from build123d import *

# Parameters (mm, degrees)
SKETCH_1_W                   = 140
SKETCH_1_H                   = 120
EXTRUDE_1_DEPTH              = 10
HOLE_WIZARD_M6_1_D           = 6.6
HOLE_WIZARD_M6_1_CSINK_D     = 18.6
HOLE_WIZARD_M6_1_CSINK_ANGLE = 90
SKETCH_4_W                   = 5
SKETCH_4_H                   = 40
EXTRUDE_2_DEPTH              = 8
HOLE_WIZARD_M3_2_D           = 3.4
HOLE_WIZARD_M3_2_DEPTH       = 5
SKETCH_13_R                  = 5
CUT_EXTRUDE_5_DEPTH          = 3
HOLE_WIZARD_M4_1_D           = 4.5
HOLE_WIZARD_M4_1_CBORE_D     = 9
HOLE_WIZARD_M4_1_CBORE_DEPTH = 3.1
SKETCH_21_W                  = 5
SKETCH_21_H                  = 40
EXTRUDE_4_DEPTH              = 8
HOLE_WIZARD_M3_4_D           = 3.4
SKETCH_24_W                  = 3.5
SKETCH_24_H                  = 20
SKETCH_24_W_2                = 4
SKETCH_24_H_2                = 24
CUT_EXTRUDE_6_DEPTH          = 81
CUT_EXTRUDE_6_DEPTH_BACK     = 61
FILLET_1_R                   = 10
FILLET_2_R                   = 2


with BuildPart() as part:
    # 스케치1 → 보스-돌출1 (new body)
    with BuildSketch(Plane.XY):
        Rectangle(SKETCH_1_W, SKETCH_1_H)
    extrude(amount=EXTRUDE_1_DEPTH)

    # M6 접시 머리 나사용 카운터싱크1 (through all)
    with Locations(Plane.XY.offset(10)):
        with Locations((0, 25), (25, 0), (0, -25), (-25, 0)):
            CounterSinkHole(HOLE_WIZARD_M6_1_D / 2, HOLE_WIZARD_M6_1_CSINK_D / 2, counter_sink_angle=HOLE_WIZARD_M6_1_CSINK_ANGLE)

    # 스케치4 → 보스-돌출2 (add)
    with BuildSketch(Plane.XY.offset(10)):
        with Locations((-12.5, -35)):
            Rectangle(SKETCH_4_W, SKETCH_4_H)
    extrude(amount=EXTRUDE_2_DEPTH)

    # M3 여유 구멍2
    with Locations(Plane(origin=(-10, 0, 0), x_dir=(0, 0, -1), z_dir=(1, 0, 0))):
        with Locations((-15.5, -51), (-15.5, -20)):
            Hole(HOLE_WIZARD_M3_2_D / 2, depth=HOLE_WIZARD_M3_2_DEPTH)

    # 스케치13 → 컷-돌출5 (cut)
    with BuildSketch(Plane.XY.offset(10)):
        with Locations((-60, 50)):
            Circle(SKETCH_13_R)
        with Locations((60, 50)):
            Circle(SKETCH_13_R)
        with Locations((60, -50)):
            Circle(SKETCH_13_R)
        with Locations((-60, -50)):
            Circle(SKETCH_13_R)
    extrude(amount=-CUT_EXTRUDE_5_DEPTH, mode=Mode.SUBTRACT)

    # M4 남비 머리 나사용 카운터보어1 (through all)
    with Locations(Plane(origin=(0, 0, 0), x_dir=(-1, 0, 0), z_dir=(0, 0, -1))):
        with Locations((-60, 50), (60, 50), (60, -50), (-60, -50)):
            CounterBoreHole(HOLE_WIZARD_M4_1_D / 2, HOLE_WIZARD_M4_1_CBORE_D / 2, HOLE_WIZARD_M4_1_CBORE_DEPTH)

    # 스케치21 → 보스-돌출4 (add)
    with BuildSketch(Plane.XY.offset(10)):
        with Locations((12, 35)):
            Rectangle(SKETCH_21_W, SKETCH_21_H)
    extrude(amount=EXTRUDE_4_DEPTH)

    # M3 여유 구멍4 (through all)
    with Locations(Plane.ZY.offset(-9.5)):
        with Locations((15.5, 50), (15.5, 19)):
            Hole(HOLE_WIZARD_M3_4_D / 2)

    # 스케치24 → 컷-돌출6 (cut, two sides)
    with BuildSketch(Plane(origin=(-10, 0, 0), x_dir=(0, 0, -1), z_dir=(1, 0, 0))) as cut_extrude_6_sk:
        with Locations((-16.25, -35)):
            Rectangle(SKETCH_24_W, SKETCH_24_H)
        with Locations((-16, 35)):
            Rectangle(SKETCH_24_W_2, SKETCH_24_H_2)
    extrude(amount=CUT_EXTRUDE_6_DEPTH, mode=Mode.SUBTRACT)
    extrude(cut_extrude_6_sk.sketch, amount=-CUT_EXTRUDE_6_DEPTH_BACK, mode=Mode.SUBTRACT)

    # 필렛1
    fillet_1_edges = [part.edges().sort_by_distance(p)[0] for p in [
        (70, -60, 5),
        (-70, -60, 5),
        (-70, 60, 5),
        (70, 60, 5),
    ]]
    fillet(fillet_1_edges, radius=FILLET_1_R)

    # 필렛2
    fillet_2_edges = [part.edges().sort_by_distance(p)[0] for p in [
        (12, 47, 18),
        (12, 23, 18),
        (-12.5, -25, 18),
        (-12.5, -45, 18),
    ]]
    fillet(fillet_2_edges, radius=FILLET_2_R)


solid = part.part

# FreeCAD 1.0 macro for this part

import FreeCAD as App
import Part
import Sketcher
from FreeCAD import Vector
Q = App.Units.Quantity


def edges_at(feature, points):
    """Names of the edges that pass closest to the given points."""
    edges = feature.Shape.Edges
    near = lambda p: min(range(len(edges)), key=lambda i: edges[i].distToShape(Part.Vertex(*p))[0])
    return sorted({f"Edge{near(p) + 1}" for p in points})

doc = App.newDocument("Part")
body = doc.addObject("PartDesign::Body", "Body")

# Sketch on XY plane
sketch1 = body.newObject("Sketcher::SketchObject", "Sketch")
sketch1.AttachmentSupport = (doc.getObject("XY_Plane"), [""])
sketch1.MapMode = "FlatFace"
sketch1.addGeometry(Part.LineSegment(Vector(-70, 60, 0), Vector(-70, -60, 0)), False)
sketch1.addGeometry(Part.LineSegment(Vector(-70, -60, 0), Vector(70, -60, 0)), False)
sketch1.addGeometry(Part.LineSegment(Vector(70, -60, 0), Vector(70, 60, 0)), False)
sketch1.addGeometry(Part.LineSegment(Vector(70, 60, 0), Vector(-70, 60, 0)), False)
sketch1.addConstraint(Sketcher.Constraint("Coincident", 0, 2, 1, 1))
sketch1.addConstraint(Sketcher.Constraint("Coincident", 1, 2, 2, 1))
sketch1.addConstraint(Sketcher.Constraint("Coincident", 2, 2, 3, 1))
sketch1.addConstraint(Sketcher.Constraint("Coincident", 3, 2, 0, 1))
sketch1.addConstraint(Sketcher.Constraint("Vertical", 0))
sketch1.addConstraint(Sketcher.Constraint("Horizontal", 1))
sketch1.addConstraint(Sketcher.Constraint("Vertical", 2))
sketch1.addConstraint(Sketcher.Constraint("Horizontal", 3))
sketch1.addConstraint(Sketcher.Constraint("Symmetric", 0, 2, 2, 2, -1, 1))
sketch1.addConstraint(Sketcher.Constraint("DistanceX", 1, 1, 1, 2, Q("140 mm")))
sketch1.addConstraint(Sketcher.Constraint("DistanceY", 0, 2, 0, 1, Q("120 mm")))
pad1 = body.newObject("PartDesign::Pad", "Pad")
pad1.Profile = sketch1
pad1.Length = 10

# Sketch on XY plane
sketch2 = body.newObject("Sketcher::SketchObject", "Sketch001")
sketch2.AttachmentSupport = (doc.getObject("XY_Plane"), [""])
sketch2.MapMode = "FlatFace"
sketch2.AttachmentOffset = App.Placement(Vector(0, 0, 10), App.Rotation())
sketch2.addGeometry(Part.Circle(Vector(0, 25, 0), Vector(0, 0, 1), 3.3), False)
sketch2.addGeometry(Part.Circle(Vector(25, 0, 0), Vector(0, 0, 1), 3.3), False)
sketch2.addGeometry(Part.Circle(Vector(0, -25, 0), Vector(0, 0, 1), 3.3), False)
sketch2.addGeometry(Part.Circle(Vector(-25, 0, 0), Vector(0, 0, 1), 3.3), False)
sketch2.addConstraint(Sketcher.Constraint("Equal", 0, 1))
sketch2.addConstraint(Sketcher.Constraint("Equal", 1, 2))
sketch2.addConstraint(Sketcher.Constraint("Equal", 2, 3))
sketch2.addConstraint(Sketcher.Constraint("Symmetric", 0, 3, 2, 3, -1, 1))
sketch2.addConstraint(Sketcher.Constraint("Symmetric", 1, 3, 3, 3, -1, 1))
sketch2.addConstraint(Sketcher.Constraint("PointOnObject", 0, 3, -2))
sketch2.addConstraint(Sketcher.Constraint("PointOnObject", 1, 3, -1))
sketch2.addConstraint(Sketcher.Constraint("Diameter", 0, Q("6.6 mm")))
sketch2.addConstraint(Sketcher.Constraint("DistanceY", -1, 1, 0, 3, Q("25 mm")))
sketch2.addConstraint(Sketcher.Constraint("DistanceX", -1, 1, 1, 3, Q("25 mm")))
doc.recompute()
hole = body.newObject("PartDesign::Hole", "Hole")
hole.Profile = sketch2
hole.ThreadType = "None"
hole.Diameter = 6.6
hole.DepthType = "ThroughAll"
hole.HoleCutType = "Countersink"
hole.HoleCutDiameter = 18.6
hole.HoleCutCountersinkAngle = 90

# Sketch on XY plane
sketch3 = body.newObject("Sketcher::SketchObject", "Sketch002")
sketch3.AttachmentSupport = (doc.getObject("XY_Plane"), [""])
sketch3.MapMode = "FlatFace"
sketch3.AttachmentOffset = App.Placement(Vector(0, 0, 10), App.Rotation())
sketch3.addGeometry(Part.LineSegment(Vector(-15, -15, 0), Vector(-15, -55, 0)), False)
sketch3.addGeometry(Part.LineSegment(Vector(-15, -55, 0), Vector(-10, -55, 0)), False)
sketch3.addGeometry(Part.LineSegment(Vector(-10, -55, 0), Vector(-10, -15, 0)), False)
sketch3.addGeometry(Part.LineSegment(Vector(-10, -15, 0), Vector(-15, -15, 0)), False)
sketch3.addConstraint(Sketcher.Constraint("Coincident", 0, 2, 1, 1))
sketch3.addConstraint(Sketcher.Constraint("Coincident", 1, 2, 2, 1))
sketch3.addConstraint(Sketcher.Constraint("Coincident", 2, 2, 3, 1))
sketch3.addConstraint(Sketcher.Constraint("Coincident", 3, 2, 0, 1))
sketch3.addConstraint(Sketcher.Constraint("Vertical", 0))
sketch3.addConstraint(Sketcher.Constraint("Horizontal", 1))
sketch3.addConstraint(Sketcher.Constraint("Vertical", 2))
sketch3.addConstraint(Sketcher.Constraint("Horizontal", 3))
sketch3.addConstraint(Sketcher.Constraint("DistanceX", 1, 1, 1, 2, Q("5 mm")))
sketch3.addConstraint(Sketcher.Constraint("DistanceY", 0, 2, 0, 1, Q("40 mm")))
sketch3.addConstraint(Sketcher.Constraint("DistanceX", 0, 2, -1, 1, Q("15 mm")))
sketch3.addConstraint(Sketcher.Constraint("DistanceY", 0, 2, -1, 1, Q("55 mm")))
pad2 = body.newObject("PartDesign::Pad", "Pad001")
pad2.Profile = sketch3
pad2.Length = 8

# Sketch on YZ plane
sketch4 = body.newObject("Sketcher::SketchObject", "Sketch003")
sketch4.AttachmentSupport = (doc.getObject("YZ_Plane"), [""])
sketch4.MapMode = "FlatFace"
sketch4.AttachmentOffset = App.Placement(Vector(0, 0, -10), App.Rotation())
sketch4.addGeometry(Part.Circle(Vector(-51, 15.5, 0), Vector(0, 0, 1), 1.7), False)
sketch4.addGeometry(Part.Circle(Vector(-20, 15.5, 0), Vector(0, 0, 1), 1.7), False)
sketch4.addConstraint(Sketcher.Constraint("Equal", 0, 1))
sketch4.addConstraint(Sketcher.Constraint("Horizontal", 0, 3, 1, 3))
sketch4.addConstraint(Sketcher.Constraint("Diameter", 0, Q("3.4 mm")))
sketch4.addConstraint(Sketcher.Constraint("DistanceX", 0, 3, -1, 1, Q("51 mm")))
sketch4.addConstraint(Sketcher.Constraint("DistanceX", 1, 3, -1, 1, Q("20 mm")))
sketch4.addConstraint(Sketcher.Constraint("DistanceY", -1, 1, 0, 3, Q("15.5 mm")))
doc.recompute()
hole2 = body.newObject("PartDesign::Hole", "Hole001")
hole2.Profile = sketch4
hole2.ThreadType = "None"
hole2.Diameter = 3.4
hole2.DepthType = "Dimension"
hole2.Depth = 5
hole2.DrillPoint = "Flat"

# Sketch on XY plane
sketch5 = body.newObject("Sketcher::SketchObject", "Sketch004")
sketch5.AttachmentSupport = (doc.getObject("XY_Plane"), [""])
sketch5.MapMode = "FlatFace"
sketch5.AttachmentOffset = App.Placement(Vector(0, 0, 10), App.Rotation())
sketch5.addGeometry(Part.Circle(Vector(-60, 50, 0), Vector(0, 0, 1), 5), False)
sketch5.addGeometry(Part.Circle(Vector(60, 50, 0), Vector(0, 0, 1), 5), False)
sketch5.addGeometry(Part.Circle(Vector(60, -50, 0), Vector(0, 0, 1), 5), False)
sketch5.addGeometry(Part.Circle(Vector(-60, -50, 0), Vector(0, 0, 1), 5), False)
sketch5.addConstraint(Sketcher.Constraint("Equal", 0, 1))
sketch5.addConstraint(Sketcher.Constraint("Equal", 1, 2))
sketch5.addConstraint(Sketcher.Constraint("Equal", 2, 3))
sketch5.addConstraint(Sketcher.Constraint("Symmetric", 0, 3, 2, 3, -1, 1))
sketch5.addConstraint(Sketcher.Constraint("Symmetric", 1, 3, 3, 3, -1, 1))
sketch5.addConstraint(Sketcher.Constraint("Symmetric", 0, 3, 1, 3, -2))
sketch5.addConstraint(Sketcher.Constraint("Diameter", 0, Q("10 mm")))
sketch5.addConstraint(Sketcher.Constraint("DistanceX", 0, 3, -1, 1, Q("60 mm")))
sketch5.addConstraint(Sketcher.Constraint("DistanceY", -1, 1, 0, 3, Q("50 mm")))
pocket1 = body.newObject("PartDesign::Pocket", "Pocket")
pocket1.Profile = sketch5
pocket1.Length = 3

# Sketch on XY plane
sketch6 = body.newObject("Sketcher::SketchObject", "Sketch005")
sketch6.AttachmentSupport = (doc.getObject("XY_Plane"), [""])
sketch6.MapMode = "FlatFace"
sketch6.addGeometry(Part.Circle(Vector(60, 50, 0), Vector(0, 0, 1), 2.2), False)
sketch6.addGeometry(Part.Circle(Vector(-60, 50, 0), Vector(0, 0, 1), 2.2), False)
sketch6.addGeometry(Part.Circle(Vector(-60, -50, 0), Vector(0, 0, 1), 2.2), False)
sketch6.addGeometry(Part.Circle(Vector(60, -50, 0), Vector(0, 0, 1), 2.2), False)
sketch6.addConstraint(Sketcher.Constraint("Equal", 0, 1))
sketch6.addConstraint(Sketcher.Constraint("Equal", 1, 2))
sketch6.addConstraint(Sketcher.Constraint("Equal", 2, 3))
sketch6.addConstraint(Sketcher.Constraint("Symmetric", 0, 3, 2, 3, -1, 1))
sketch6.addConstraint(Sketcher.Constraint("Symmetric", 1, 3, 3, 3, -1, 1))
sketch6.addConstraint(Sketcher.Constraint("Symmetric", 0, 3, 1, 3, -2))
sketch6.addConstraint(Sketcher.Constraint("Diameter", 0, Q("4.5 mm")))
sketch6.addConstraint(Sketcher.Constraint("DistanceX", -1, 1, 0, 3, Q("60 mm")))
sketch6.addConstraint(Sketcher.Constraint("DistanceY", -1, 1, 0, 3, Q("50 mm")))
doc.recompute()
hole3 = body.newObject("PartDesign::Hole", "Hole002")
hole3.Profile = sketch6
hole3.ThreadType = "None"
hole3.Diameter = 4.5
hole3.DepthType = "ThroughAll"
hole3.HoleCutType = "Counterbore"
hole3.HoleCutDiameter = 9
hole3.HoleCutDepth = 3.1
hole3.Reversed = True

# Sketch on XY plane
sketch7 = body.newObject("Sketcher::SketchObject", "Sketch006")
sketch7.AttachmentSupport = (doc.getObject("XY_Plane"), [""])
sketch7.MapMode = "FlatFace"
sketch7.AttachmentOffset = App.Placement(Vector(0, 0, 10), App.Rotation())
sketch7.addGeometry(Part.LineSegment(Vector(10, 55, 0), Vector(10, 15, 0)), False)
sketch7.addGeometry(Part.LineSegment(Vector(10, 15, 0), Vector(14, 15, 0)), False)
sketch7.addGeometry(Part.LineSegment(Vector(14, 15, 0), Vector(14, 55, 0)), False)
sketch7.addGeometry(Part.LineSegment(Vector(14, 55, 0), Vector(10, 55, 0)), False)
sketch7.addConstraint(Sketcher.Constraint("Coincident", 0, 2, 1, 1))
sketch7.addConstraint(Sketcher.Constraint("Coincident", 1, 2, 2, 1))
sketch7.addConstraint(Sketcher.Constraint("Coincident", 2, 2, 3, 1))
sketch7.addConstraint(Sketcher.Constraint("Coincident", 3, 2, 0, 1))
sketch7.addConstraint(Sketcher.Constraint("Vertical", 0))
sketch7.addConstraint(Sketcher.Constraint("Horizontal", 1))
sketch7.addConstraint(Sketcher.Constraint("Vertical", 2))
sketch7.addConstraint(Sketcher.Constraint("Horizontal", 3))
sketch7.addConstraint(Sketcher.Constraint("DistanceX", 1, 1, 1, 2, Q("5 mm")))
sketch7.addConstraint(Sketcher.Constraint("DistanceY", 0, 2, 0, 1, Q("40 mm")))
sketch7.addConstraint(Sketcher.Constraint("DistanceY", -1, 1, 0, 2, Q("15 mm")))
sketch7.addConstraint(Sketcher.Constraint("DistanceX", -1, 1, 0, 2, Q("9.5 mm")))
pad3 = body.newObject("PartDesign::Pad", "Pad002")
pad3.Profile = sketch7
pad3.Length = 8

# Sketch on YZ plane
sketch8 = body.newObject("Sketcher::SketchObject", "Sketch007")
sketch8.AttachmentSupport = (doc.getObject("YZ_Plane"), [""])
sketch8.MapMode = "FlatFace"
sketch8.AttachmentOffset = App.Placement(Vector(0, 0, 9.5), App.Rotation())
sketch8.addGeometry(Part.Circle(Vector(50, 15.5, 0), Vector(0, 0, 1), 1.7), False)
sketch8.addGeometry(Part.Circle(Vector(19, 15.5, 0), Vector(0, 0, 1), 1.7), False)
sketch8.addConstraint(Sketcher.Constraint("Equal", 0, 1))
sketch8.addConstraint(Sketcher.Constraint("Horizontal", 0, 3, 1, 3))
sketch8.addConstraint(Sketcher.Constraint("Diameter", 0, Q("3.4 mm")))
sketch8.addConstraint(Sketcher.Constraint("DistanceX", -1, 1, 0, 3, Q("50 mm")))
sketch8.addConstraint(Sketcher.Constraint("DistanceX", -1, 1, 1, 3, Q("19 mm")))
sketch8.addConstraint(Sketcher.Constraint("DistanceY", -1, 1, 0, 3, Q("15.5 mm")))
doc.recompute()
hole4 = body.newObject("PartDesign::Hole", "Hole003")
hole4.Profile = sketch8
hole4.ThreadType = "None"
hole4.Diameter = 3.4
hole4.DepthType = "ThroughAll"
hole4.Reversed = True

# Sketch on YZ plane
sketch9 = body.newObject("Sketcher::SketchObject", "Sketch008")
sketch9.AttachmentSupport = (doc.getObject("YZ_Plane"), [""])
sketch9.MapMode = "FlatFace"
sketch9.AttachmentOffset = App.Placement(Vector(0, 0, -10), App.Rotation())
sketch9.addGeometry(Part.LineSegment(Vector(-25, 18, 0), Vector(-45, 18, 0)), False)
sketch9.addGeometry(Part.LineSegment(Vector(-45, 18, 0), Vector(-45, 14.5, 0)), False)
sketch9.addGeometry(Part.LineSegment(Vector(-45, 14.5, 0), Vector(-25, 14.5, 0)), False)
sketch9.addGeometry(Part.LineSegment(Vector(-25, 14.5, 0), Vector(-25, 18, 0)), False)
sketch9.addGeometry(Part.LineSegment(Vector(47, 18, 0), Vector(23, 18, 0)), False)
sketch9.addGeometry(Part.LineSegment(Vector(23, 18, 0), Vector(23, 14, 0)), False)
sketch9.addGeometry(Part.LineSegment(Vector(23, 14, 0), Vector(47, 14, 0)), False)
sketch9.addGeometry(Part.LineSegment(Vector(47, 14, 0), Vector(47, 18, 0)), False)
sketch9.addConstraint(Sketcher.Constraint("Coincident", 0, 2, 1, 1))
sketch9.addConstraint(Sketcher.Constraint("Coincident", 1, 2, 2, 1))
sketch9.addConstraint(Sketcher.Constraint("Coincident", 2, 2, 3, 1))
sketch9.addConstraint(Sketcher.Constraint("Coincident", 3, 2, 0, 1))
sketch9.addConstraint(Sketcher.Constraint("Coincident", 4, 2, 5, 1))
sketch9.addConstraint(Sketcher.Constraint("Coincident", 5, 2, 6, 1))
sketch9.addConstraint(Sketcher.Constraint("Coincident", 6, 2, 7, 1))
sketch9.addConstraint(Sketcher.Constraint("Coincident", 7, 2, 4, 1))
sketch9.addConstraint(Sketcher.Constraint("Horizontal", 0))
sketch9.addConstraint(Sketcher.Constraint("Vertical", 1))
sketch9.addConstraint(Sketcher.Constraint("Horizontal", 2))
sketch9.addConstraint(Sketcher.Constraint("Vertical", 3))
sketch9.addConstraint(Sketcher.Constraint("Horizontal", 4))
sketch9.addConstraint(Sketcher.Constraint("Vertical", 5))
sketch9.addConstraint(Sketcher.Constraint("Horizontal", 6))
sketch9.addConstraint(Sketcher.Constraint("Vertical", 7))
sketch9.addConstraint(Sketcher.Constraint("Horizontal", 3, 2, 4, 2))
sketch9.addConstraint(Sketcher.Constraint("DistanceX", 0, 2, 0, 1, Q("20 mm")))
sketch9.addConstraint(Sketcher.Constraint("DistanceX", 4, 2, 4, 1, Q("24 mm")))
sketch9.addConstraint(Sketcher.Constraint("DistanceY", 5, 2, 5, 1, Q("4 mm")))
sketch9.addConstraint(Sketcher.Constraint("DistanceY", 1, 2, 1, 1, Q("3.5 mm")))
sketch9.addConstraint(Sketcher.Constraint("DistanceX", 0, 2, -1, 1, Q("45 mm")))
sketch9.addConstraint(Sketcher.Constraint("DistanceY", -1, 1, 0, 2, Q("18 mm")))
sketch9.addConstraint(Sketcher.Constraint("DistanceX", -1, 1, 4, 2, Q("23 mm")))
pocket2 = body.newObject("PartDesign::Pocket", "Pocket001")
pocket2.Profile = sketch9
pocket2.Type = "ThroughAll"
pocket2.Midplane = True
doc.recompute()

fillet = body.newObject("PartDesign::Fillet", "Fillet")
fillet.Base = (pocket2, edges_at(pocket2, [
    (70, -60, 5),
    (-70, -60, 5),
    (-70, 60, 5),
    (70, 60, 5),
]))
fillet.Radius = 10
doc.recompute()

fillet2 = body.newObject("PartDesign::Fillet", "Fillet001")
fillet2.Base = (fillet, edges_at(fillet, [
    (12, 47, 18),
    (12, 23, 18),
    (-12.5, -25, 18),
    (-12.5, -45, 18),
]))
fillet2.Radius = 2

doc.recompute()
